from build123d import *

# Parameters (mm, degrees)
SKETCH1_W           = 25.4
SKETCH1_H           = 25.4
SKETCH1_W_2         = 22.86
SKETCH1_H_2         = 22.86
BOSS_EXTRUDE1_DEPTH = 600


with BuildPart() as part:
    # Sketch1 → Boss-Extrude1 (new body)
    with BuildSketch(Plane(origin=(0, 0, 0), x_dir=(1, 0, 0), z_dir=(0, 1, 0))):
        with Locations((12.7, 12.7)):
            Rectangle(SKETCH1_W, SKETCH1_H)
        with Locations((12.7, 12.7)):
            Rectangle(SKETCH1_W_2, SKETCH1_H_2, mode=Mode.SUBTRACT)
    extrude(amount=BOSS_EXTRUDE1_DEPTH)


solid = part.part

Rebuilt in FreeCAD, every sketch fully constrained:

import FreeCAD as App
import Part
import Sketcher
from FreeCAD import Vector
Q = App.Units.Quantity

doc = App.newDocument("Part")
params = doc.addObject("Spreadsheet::Sheet", "Params")
for row, (alias, value) in enumerate([
    ("sketch1_width", "1 in"),
    ("sketch1_width2", "0.9 in"),
    ("pad1_length", "600 mm"),
], start=1):
    params.set(f"A{row}", alias)
    params.set(f"B{row}", "=" + value)
    params.setAlias(f"B{row}", alias)

body = doc.addObject("PartDesign::Body", "Body")

# Sketch on XZ plane
sketch1 = body.newObject("Sketcher::SketchObject", "Sketch")
sketch1.AttachmentSupport = (doc.getObject("XZ_Plane"), [""])
sketch1.MapMode = "FlatFace"
sketch1.addGeometry([
    Part.LineSegment(Vector(0, -25, 0), Vector(0, 0, 0)),  # 0
    Part.LineSegment(Vector(0, 0, 0), Vector(25, 0, 0)),  # 1
    Part.LineSegment(Vector(25, 0, 0), Vector(25, -25, 0)),  # 2
    Part.LineSegment(Vector(25, -25, 0), Vector(0, -25, 0)),  # 3
    Part.LineSegment(Vector(24, -1, 0), Vector(1, -1, 0)),  # 4
    Part.LineSegment(Vector(1, -1, 0), Vector(1, -24, 0)),  # 5
    Part.LineSegment(Vector(1, -24, 0), Vector(24, -24, 0)),  # 6
    Part.LineSegment(Vector(24, -24, 0), Vector(24, -1, 0)),  # 7
], False)
sketch1.addConstraint([
    Sketcher.Constraint("Coincident", 0, 2, 1, 1),
    Sketcher.Constraint("Coincident", 1, 2, 2, 1),
    Sketcher.Constraint("Coincident", 2, 2, 3, 1),
    Sketcher.Constraint("Coincident", 3, 2, 0, 1),
    Sketcher.Constraint("Coincident", 4, 2, 5, 1),
    Sketcher.Constraint("Coincident", 5, 2, 6, 1),
    Sketcher.Constraint("Coincident", 6, 2, 7, 1),
    Sketcher.Constraint("Coincident", 7, 2, 4, 1),
    Sketcher.Constraint("Vertical", 0),
    Sketcher.Constraint("Horizontal", 1),
    Sketcher.Constraint("Vertical", 2),
    Sketcher.Constraint("Horizontal", 3),
    Sketcher.Constraint("Horizontal", 4),
    Sketcher.Constraint("Vertical", 5),
    Sketcher.Constraint("Horizontal", 6),
    Sketcher.Constraint("Vertical", 7),
    Sketcher.Constraint("Coincident", 0, 2, -1, 1),
    Sketcher.Constraint("Equal", 3, 0),
    Sketcher.Constraint("Equal", 6, 5),
    Sketcher.Constraint("DistanceX", 1, 1, 1, 2, Q("1 in")),
    Sketcher.Constraint("DistanceX", 4, 2, 4, 1, Q("0.9 in")),
    Sketcher.Constraint("DistanceX", -1, 1, 4, 2, Q("0.05 in")),
    Sketcher.Constraint("DistanceY", 4, 2, -1, 1, Q("0.05 in")),
])
sketch1.setExpression("Constraints[19]", "Params.sketch1_width")
sketch1.setExpression("Constraints[20]", "Params.sketch1_width2")
pad1 = body.newObject("PartDesign::Pad", "Pad")
pad1.Profile = sketch1
pad1.setExpression("Length", "Params.pad1_length")
pad1.Reversed = True

doc.recompute()
